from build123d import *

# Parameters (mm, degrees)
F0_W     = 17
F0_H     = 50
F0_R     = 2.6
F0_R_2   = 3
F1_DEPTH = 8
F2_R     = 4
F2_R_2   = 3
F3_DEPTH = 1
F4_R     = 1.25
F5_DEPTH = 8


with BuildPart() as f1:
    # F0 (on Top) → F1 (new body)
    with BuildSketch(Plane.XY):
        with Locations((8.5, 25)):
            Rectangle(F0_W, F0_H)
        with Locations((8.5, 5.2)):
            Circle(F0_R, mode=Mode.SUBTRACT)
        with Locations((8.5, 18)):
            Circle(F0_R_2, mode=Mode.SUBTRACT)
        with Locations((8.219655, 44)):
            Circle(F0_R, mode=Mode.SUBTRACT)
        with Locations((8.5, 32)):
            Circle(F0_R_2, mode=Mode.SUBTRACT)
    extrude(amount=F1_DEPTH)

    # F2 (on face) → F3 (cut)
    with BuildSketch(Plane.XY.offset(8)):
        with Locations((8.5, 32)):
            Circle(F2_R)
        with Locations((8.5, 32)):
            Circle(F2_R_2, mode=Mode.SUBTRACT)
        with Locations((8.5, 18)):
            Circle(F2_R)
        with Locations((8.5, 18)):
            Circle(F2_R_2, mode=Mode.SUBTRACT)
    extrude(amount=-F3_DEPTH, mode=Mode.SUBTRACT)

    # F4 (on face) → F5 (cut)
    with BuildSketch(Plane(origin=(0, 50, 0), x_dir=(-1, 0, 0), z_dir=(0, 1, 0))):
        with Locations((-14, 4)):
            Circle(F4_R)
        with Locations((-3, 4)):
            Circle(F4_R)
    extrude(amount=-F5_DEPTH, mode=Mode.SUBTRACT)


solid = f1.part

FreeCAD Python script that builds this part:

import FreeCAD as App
import Part
import Sketcher

V = App.Vector
Q = App.Units.Quantity

doc = App.newDocument("Part")
body = doc.addObject("PartDesign::Body", "Body")

sketch1 = doc.addObject("Sketcher::SketchObject", "Sketch")
body.addObject(sketch1)
sketch1.AttachmentSupport = (doc.XY_Plane, [""])
sketch1.MapMode = "FlatFace"
sketch1.addGeometry(Part.LineSegment(V(0, 50, 0), V(0, 0, 0)), False)
sketch1.addGeometry(Part.LineSegment(V(0, 0, 0), V(17, 0, 0)), False)
sketch1.addGeometry(Part.LineSegment(V(17, 0, 0), V(17, 50, 0)), False)
sketch1.addGeometry(Part.LineSegment(V(17, 50, 0), V(0, 50, 0)), False)
sketch1.addGeometry(Part.Circle(V(8.5, 5.2, 0), V(0, 0, 1), 2.6), False)
sketch1.addGeometry(Part.Circle(V(8.5, 18, 0), V(0, 0, 1), 3), False)
sketch1.addGeometry(Part.Circle(V(8.2, 44, 0), V(0, 0, 1), 2.6), False)
sketch1.addGeometry(Part.Circle(V(8.5, 32, 0), V(0, 0, 1), 3), False)
sketch1.addConstraint(Sketcher.Constraint("Coincident", 0, 2, 1, 1))
sketch1.addConstraint(Sketcher.Constraint("Coincident", 1, 2, 2, 1))
sketch1.addConstraint(Sketcher.Constraint("Coincident", 2, 2, 3, 1))
sketch1.addConstraint(Sketcher.Constraint("Coincident", 3, 2, 0, 1))
sketch1.addConstraint(Sketcher.Constraint("Vertical", 0))
sketch1.addConstraint(Sketcher.Constraint("Horizontal", 1))
sketch1.addConstraint(Sketcher.Constraint("Vertical", 2))
sketch1.addConstraint(Sketcher.Constraint("Horizontal", 3))
sketch1.addConstraint(Sketcher.Constraint("Coincident", 0, 2, -1, 1))
sketch1.addConstraint(Sketcher.Constraint("Equal", 4, 6))
sketch1.addConstraint(Sketcher.Constraint("Equal", 5, 7))
sketch1.addConstraint(Sketcher.Constraint("Vertical", 4, 3, 5, 3))
sketch1.addConstraint(Sketcher.Constraint("Vertical", 5, 3, 7, 3))
sketch1.addConstraint(Sketcher.Constraint("Diameter", 5, Q("6 mm")))
sketch1.addConstraint(Sketcher.Constraint("Diameter", 4, Q("5.2 mm")))
sketch1.addConstraint(Sketcher.Constraint("DistanceX", 1, 1, 1, 2, Q("17 mm")))
sketch1.addConstraint(Sketcher.Constraint("DistanceY", 0, 2, 0, 1, Q("50 mm")))
sketch1.addConstraint(Sketcher.Constraint("DistanceY", -1, 1, 5, 3, Q("18 mm")))
sketch1.addConstraint(Sketcher.Constraint("DistanceY", -1, 1, 6, 3, Q("44 mm")))
sketch1.addConstraint(Sketcher.Constraint("DistanceY", -1, 1, 7, 3, Q("32 mm")))
sketch1.addConstraint(Sketcher.Constraint("DistanceX", -1, 1, 4, 3, Q("8.5 mm")))
sketch1.addConstraint(Sketcher.Constraint("DistanceY", -1, 1, 4, 3, Q("5.2 mm")))
sketch1.addConstraint(Sketcher.Constraint("DistanceX", -1, 1, 6, 3, Q("8.219655 mm")))
pad1 = doc.addObject("PartDesign::Pad", "Pad")
body.addObject(pad1)
pad1.Profile = sketch1
pad1.Length = 8

sketch2 = doc.addObject("Sketcher::SketchObject", "Sketch001")
body.addObject(sketch2)
sketch2.AttachmentSupport = (doc.XY_Plane, [""])
sketch2.MapMode = "FlatFace"
sketch2.AttachmentOffset = App.Placement(V(0, 0, 8), App.Rotation())
sketch2.addGeometry(Part.Circle(V(8.5, 32, 0), V(0, 0, 1), 4), False)
sketch2.addGeometry(Part.Circle(V(8.5, 32, 0), V(0, 0, 1), 3), False)
sketch2.addGeometry(Part.Circle(V(8.5, 18, 0), V(0, 0, 1), 4), False)
sketch2.addGeometry(Part.Circle(V(8.5, 18, 0), V(0, 0, 1), 3), False)
sketch2.addConstraint(Sketcher.Constraint("Coincident", 1, 3, 0, 3))
sketch2.addConstraint(Sketcher.Constraint("Coincident", 3, 3, 2, 3))
sketch2.addConstraint(Sketcher.Constraint("Equal", 0, 2))
sketch2.addConstraint(Sketcher.Constraint("Equal", 1, 3))
sketch2.addConstraint(Sketcher.Constraint("Vertical", 1, 3, 2, 3))
sketch2.addConstraint(Sketcher.Constraint("Diameter", 0, Q("8 mm")))
sketch2.addConstraint(Sketcher.Constraint("Diameter", 1, Q("6 mm")))
sketch2.addConstraint(Sketcher.Constraint("DistanceY", -1, 1, 0, 3, Q("32 mm")))
sketch2.addConstraint(Sketcher.Constraint("DistanceY", -1, 1, 2, 3, Q("18 mm")))
sketch2.addConstraint(Sketcher.Constraint("DistanceX", -1, 1, 0, 3, Q("8.5 mm")))
pocket1 = doc.addObject("PartDesign::Pocket", "Pocket")
body.addObject(pocket1)
pocket1.Profile = sketch2
pocket1.Length = 1

sketch3 = doc.addObject("Sketcher::SketchObject", "Sketch002")
body.addObject(sketch3)
sketch3.AttachmentSupport = (doc.XZ_Plane, [""])
sketch3.MapMode = "FlatFace"
sketch3.AttachmentOffset = App.Placement(V(0, 0, -50), App.Rotation())
sketch3.addGeometry(Part.Circle(V(14, 4, 0), V(0, 0, 1), 1.2), False)
sketch3.addGeometry(Part.Circle(V(3, 4, 0), V(0, 0, 1), 1.2), False)
sketch3.addConstraint(Sketcher.Constraint("Equal", 0, 1))
sketch3.addConstraint(Sketcher.Constraint("Horizontal", 0, 3, 1, 3))
sketch3.addConstraint(Sketcher.Constraint("Diameter", 0, Q("2.5 mm")))
sketch3.addConstraint(Sketcher.Constraint("DistanceX", -1, 1, 0, 3, Q("14 mm")))
sketch3.addConstraint(Sketcher.Constraint("DistanceY", -1, 1, 0, 3, Q("4 mm")))
sketch3.addConstraint(Sketcher.Constraint("DistanceX", -1, 1, 1, 3, Q("3 mm")))
pocket2 = doc.addObject("PartDesign::Pocket", "Pocket001")
body.addObject(pocket2)
pocket2.Profile = sketch3
pocket2.Length = 8
pocket2.Reversed = True

doc.recompute()
